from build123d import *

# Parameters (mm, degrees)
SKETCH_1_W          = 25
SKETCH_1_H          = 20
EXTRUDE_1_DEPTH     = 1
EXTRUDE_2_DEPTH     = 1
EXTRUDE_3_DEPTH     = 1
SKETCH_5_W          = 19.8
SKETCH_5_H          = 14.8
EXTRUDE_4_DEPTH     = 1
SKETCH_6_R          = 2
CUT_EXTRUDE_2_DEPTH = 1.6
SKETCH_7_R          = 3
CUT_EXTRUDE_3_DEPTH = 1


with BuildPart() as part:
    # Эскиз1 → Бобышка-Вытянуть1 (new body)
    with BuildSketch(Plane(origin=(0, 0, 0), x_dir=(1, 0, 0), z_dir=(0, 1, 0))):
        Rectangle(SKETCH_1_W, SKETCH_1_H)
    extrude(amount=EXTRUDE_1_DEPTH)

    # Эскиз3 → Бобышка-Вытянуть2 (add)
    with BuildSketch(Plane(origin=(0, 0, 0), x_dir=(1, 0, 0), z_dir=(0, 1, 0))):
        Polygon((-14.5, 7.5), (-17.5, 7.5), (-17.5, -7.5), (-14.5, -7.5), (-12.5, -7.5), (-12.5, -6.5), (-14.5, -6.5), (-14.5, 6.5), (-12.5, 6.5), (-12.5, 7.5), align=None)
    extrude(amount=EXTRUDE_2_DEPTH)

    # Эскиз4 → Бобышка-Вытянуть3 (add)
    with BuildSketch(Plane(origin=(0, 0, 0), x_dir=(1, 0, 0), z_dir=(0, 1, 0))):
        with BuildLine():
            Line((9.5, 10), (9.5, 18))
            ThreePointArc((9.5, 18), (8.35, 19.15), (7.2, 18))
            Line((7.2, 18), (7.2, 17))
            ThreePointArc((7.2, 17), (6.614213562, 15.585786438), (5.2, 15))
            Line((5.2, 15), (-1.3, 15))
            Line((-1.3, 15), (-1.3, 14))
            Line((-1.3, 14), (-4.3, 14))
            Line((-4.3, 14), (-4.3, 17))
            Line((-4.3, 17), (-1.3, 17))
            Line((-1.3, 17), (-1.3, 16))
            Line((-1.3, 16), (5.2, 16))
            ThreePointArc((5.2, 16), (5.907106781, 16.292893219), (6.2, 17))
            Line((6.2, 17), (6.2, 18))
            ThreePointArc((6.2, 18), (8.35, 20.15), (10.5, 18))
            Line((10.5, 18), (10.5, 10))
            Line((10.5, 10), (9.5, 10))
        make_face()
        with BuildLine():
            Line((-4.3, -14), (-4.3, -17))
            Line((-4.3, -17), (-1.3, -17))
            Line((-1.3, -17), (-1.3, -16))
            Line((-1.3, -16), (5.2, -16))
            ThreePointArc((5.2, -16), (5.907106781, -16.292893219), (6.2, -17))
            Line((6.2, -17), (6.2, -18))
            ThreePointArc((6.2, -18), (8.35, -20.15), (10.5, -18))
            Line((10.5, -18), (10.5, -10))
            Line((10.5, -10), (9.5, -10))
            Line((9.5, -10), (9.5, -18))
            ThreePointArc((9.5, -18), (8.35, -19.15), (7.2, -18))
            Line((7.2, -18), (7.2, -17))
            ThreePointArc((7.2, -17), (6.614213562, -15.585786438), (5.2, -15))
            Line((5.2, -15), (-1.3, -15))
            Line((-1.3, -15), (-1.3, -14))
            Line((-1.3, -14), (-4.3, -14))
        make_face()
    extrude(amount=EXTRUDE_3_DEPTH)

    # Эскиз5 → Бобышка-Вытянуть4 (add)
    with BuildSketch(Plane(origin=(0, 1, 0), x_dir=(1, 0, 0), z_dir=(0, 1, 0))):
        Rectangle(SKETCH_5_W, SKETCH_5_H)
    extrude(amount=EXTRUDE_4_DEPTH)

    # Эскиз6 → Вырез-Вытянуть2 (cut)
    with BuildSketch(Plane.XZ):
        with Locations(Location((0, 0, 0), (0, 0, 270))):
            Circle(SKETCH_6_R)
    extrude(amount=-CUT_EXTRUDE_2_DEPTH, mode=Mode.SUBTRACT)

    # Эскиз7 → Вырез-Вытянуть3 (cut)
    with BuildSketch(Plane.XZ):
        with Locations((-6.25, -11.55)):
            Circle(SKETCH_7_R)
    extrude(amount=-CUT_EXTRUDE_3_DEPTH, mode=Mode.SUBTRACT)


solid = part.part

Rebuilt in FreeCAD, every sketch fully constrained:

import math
import FreeCAD as App
import Part
import Sketcher
from FreeCAD import Vector

doc = App.newDocument("Part")
params = doc.addObject("Spreadsheet::Sheet", "Params")
for row, (alias, value) in enumerate([
    ("sketch1_width", "25 mm"),
    ("sketch1_height", "20 mm"),
    ("pad1_length", "1 mm"),
    ("sketch2_width", "5 mm"),
    ("sketch2_width2", "2 mm"),
    ("sketch2_height", "15 mm"),
    ("sketch2_height2", "1 mm"),
    ("pad2_length", "1 mm"),
    ("sketch3_radius", "1 mm"),
    ("sketch3_height", "8 mm"),
    ("sketch3_radius2", "2.15 mm"),
    ("sketch3_width", "6.5 mm"),
    ("pad3_length", "1 mm"),
    ("sketch4_width", "19.8 mm"),
    ("sketch4_height", "14.8 mm"),
    ("pad4_length", "1 mm"),
    ("sketch5_diameter", "4 mm"),
    ("pocket1_length", "1.6 mm"),
    ("sketch6_diameter", "6 mm"),
    ("pocket2_length", "1 mm"),
], start=1):
    params.set(f"A{row}", alias)
    params.set(f"B{row}", "=" + value)
    params.setAlias(f"B{row}", alias)

body = doc.addObject("PartDesign::Body", "Body")

# Sketch on XZ plane
sketch1 = body.newObject("Sketcher::SketchObject", "Sketch")
sketch1.AttachmentSupport = (doc.getObject("XZ_Plane"), [""])
sketch1.MapMode = "FlatFace"
sketch1.addGeometry([
    Part.LineSegment(Vector(-12, -10, 0), Vector(-12, 10, 0)),
    Part.LineSegment(Vector(-12, 10, 0), Vector(12, 10, 0)),
    Part.LineSegment(Vector(12, 10, 0), Vector(12, -10, 0)),
    Part.LineSegment(Vector(12, -10, 0), Vector(-12, -10, 0)),
], False)
sketch1.addConstraint([
    Sketcher.Constraint("Coincident", 0, 2, 1, 1),
    Sketcher.Constraint("Coincident", 1, 2, 2, 1),
    Sketcher.Constraint("Coincident", 2, 2, 3, 1),
    Sketcher.Constraint("Coincident", 3, 2, 0, 1),
    Sketcher.Constraint("Vertical", 0),
    Sketcher.Constraint("Horizontal", 1),
    Sketcher.Constraint("Vertical", 2),
    Sketcher.Constraint("Horizontal", 3),
    Sketcher.Constraint("Symmetric", 0, 2, 2, 2, -1, 1),
    Sketcher.Constraint("DistanceX", 1, 1, 1, 2, 25.0),
    Sketcher.Constraint("DistanceY", 0, 1, 0, 2, 20.0),
])
sketch1.setExpression("Constraints[9]", "Params.sketch1_width")
sketch1.setExpression("Constraints[10]", "Params.sketch1_height")
pad1 = body.newObject("PartDesign::Pad", "Pad")
pad1.Profile = sketch1
pad1.setExpression("Length", "Params.pad1_length")
pad1.Reversed = True

# Sketch on XZ plane
sketch2 = body.newObject("Sketcher::SketchObject", "Sketch001")
sketch2.AttachmentSupport = (doc.getObject("XZ_Plane"), [""])
sketch2.MapMode = "FlatFace"
sketch2.addGeometry([
    Part.LineSegment(Vector(-17.5, -7.5, 0), Vector(-17.5, 7.5, 0)),  # 0
    Part.LineSegment(Vector(-17.5, 7.5, 0), Vector(-12.5, 7.5, 0)),  # 1
    Part.LineSegment(Vector(-12.5, 7.5, 0), Vector(-12.5, 6.5, 0)),  # 2
    Part.LineSegment(Vector(-12.5, 6.5, 0), Vector(-14.5, 6.5, 0)),  # 3
    Part.LineSegment(Vector(-14.5, 6.5, 0), Vector(-14.5, -6.5, 0)),  # 4
    Part.LineSegment(Vector(-14.5, -6.5, 0), Vector(-12.5, -6.5, 0)),  # 5
    Part.LineSegment(Vector(-12.5, -6.5, 0), Vector(-12.5, -7.5, 0)),  # 6
    Part.LineSegment(Vector(-12.5, -7.5, 0), Vector(-17.5, -7.5, 0)),  # 7
], False)
sketch2.addConstraint([
    Sketcher.Constraint("Coincident", 0, 2, 1, 1),
    Sketcher.Constraint("Coincident", 1, 2, 2, 1),
    Sketcher.Constraint("Coincident", 2, 2, 3, 1),
    Sketcher.Constraint("Coincident", 3, 2, 4, 1),
    Sketcher.Constraint("Coincident", 4, 2, 5, 1),
    Sketcher.Constraint("Coincident", 5, 2, 6, 1),
    Sketcher.Constraint("Coincident", 6, 2, 7, 1),
    Sketcher.Constraint("Coincident", 7, 2, 0, 1),
    Sketcher.Constraint("Vertical", 0),
    Sketcher.Constraint("Horizontal", 1),
    Sketcher.Constraint("Vertical", 2),
    Sketcher.Constraint("Horizontal", 3),
    Sketcher.Constraint("Vertical", 4),
    Sketcher.Constraint("Horizontal", 5),
    Sketcher.Constraint("Vertical", 6),
    Sketcher.Constraint("Horizontal", 7),
    Sketcher.Constraint("Symmetric", 2, 2, 5, 2, -1),
    Sketcher.Constraint("Equal", 2, 6),
    Sketcher.Constraint("DistanceX", 1, 1, 1, 2, 5.0),
    Sketcher.Constraint("DistanceX", 3, 2, 3, 1, 2.0),
    Sketcher.Constraint("DistanceY", 0, 1, 0, 2, 15.0),
    Sketcher.Constraint("DistanceY", 2, 2, 2, 1, 1.0),
    Sketcher.Constraint("DistanceX", 0, 2, -1, 1, 17.5),
])
sketch2.setExpression("Constraints[18]", "Params.sketch2_width")
sketch2.setExpression("Constraints[19]", "Params.sketch2_width2")
sketch2.setExpression("Constraints[20]", "Params.sketch2_height")
sketch2.setExpression("Constraints[21]", "Params.sketch2_height2")
pad2 = body.newObject("PartDesign::Pad", "Pad001")
pad2.Profile = sketch2
pad2.setExpression("Length", "Params.pad2_length")
pad2.Reversed = True

# Sketch on XZ plane
sketch3 = body.newObject("Sketcher::SketchObject", "Sketch002")
sketch3.AttachmentSupport = (doc.getObject("XZ_Plane"), [""])
sketch3.MapMode = "FlatFace"
sketch3.addGeometry([
    Part.LineSegment(Vector(9.5, -18, 0), Vector(9.5, -10, 0)),  # 0
    Part.LineSegment(Vector(9.5, -10, 0), Vector(10.5, -10, 0)),  # 1
    Part.LineSegment(Vector(10.5, -10, 0), Vector(10.5, -18, 0)),  # 2
    Part.ArcOfCircle(Part.Circle(Vector(8.3, -18, 0), Vector(0, 0, 1), 2.1), math.radians(180), math.radians(360)),  # 3
    Part.LineSegment(Vector(6.2, -18, 0), Vector(6.2, -17, 0)),  # 4
    Part.ArcOfCircle(Part.Circle(Vector(5.2, -17, 0), Vector(0, 0, 1), 1), math.radians(0), math.radians(90)),  # 5
    Part.LineSegment(Vector(5.2, -16, 0), Vector(-1.3, -16, 0)),  # 6
    Part.LineSegment(Vector(-1.3, -16, 0), Vector(-1.3, -17, 0)),  # 7
    Part.LineSegment(Vector(-1.3, -17, 0), Vector(-4.3, -17, 0)),  # 8
    Part.LineSegment(Vector(-4.3, -17, 0), Vector(-4.3, -14, 0)),  # 9
    Part.LineSegment(Vector(-4.3, -14, 0), Vector(-1.3, -14, 0)),  # 10
    Part.LineSegment(Vector(-1.3, -14, 0), Vector(-1.3, -15, 0)),  # 11
    Part.LineSegment(Vector(-1.3, -15, 0), Vector(5.2, -15, 0)),  # 12
    Part.ArcOfCircle(Part.Circle(Vector(5.2, -17, 0), Vector(0, 0, 1), 2), math.radians(0), math.radians(90)),  # 13
    Part.LineSegment(Vector(7.2, -17, 0), Vector(7.2, -18, 0)),  # 14
    Part.ArcOfCircle(Part.Circle(Vector(8.3, -18, 0), Vector(0, 0, 1), 1.1), math.radians(180), math.radians(360)),  # 15
    Part.LineSegment(Vector(-4.3, 14, 0), Vector(-4.3, 17, 0)),  # 16
    Part.LineSegment(Vector(-4.3, 17, 0), Vector(-1.3, 17, 0)),  # 17
    Part.LineSegment(Vector(-1.3, 17, 0), Vector(-1.3, 16, 0)),  # 18
    Part.LineSegment(Vector(-1.3, 16, 0), Vector(5.2, 16, 0)),  # 19
    Part.ArcOfCircle(Part.Circle(Vector(5.2, 17, 0), Vector(0, 0, 1), 1), math.radians(-90), math.radians(0)),  # 20
    Part.LineSegment(Vector(6.2, 17, 0), Vector(6.2, 18, 0)),  # 21
    Part.ArcOfCircle(Part.Circle(Vector(8.3, 18, 0), Vector(0, 0, 1), 2.1), math.radians(0), math.radians(180)),  # 22
    Part.LineSegment(Vector(10.5, 18, 0), Vector(10.5, 10, 0)),  # 23
    Part.LineSegment(Vector(10.5, 10, 0), Vector(9.5, 10, 0)),  # 24
    Part.LineSegment(Vector(9.5, 10, 0), Vector(9.5, 18, 0)),  # 25
    Part.ArcOfCircle(Part.Circle(Vector(8.3, 18, 0), Vector(0, 0, 1), 1.1), math.radians(0), math.radians(180)),  # 26
    Part.LineSegment(Vector(7.2, 18, 0), Vector(7.2, 17, 0)),  # 27
    Part.ArcOfCircle(Part.Circle(Vector(5.2, 17, 0), Vector(0, 0, 1), 2), math.radians(-90), math.radians(0)),  # 28
    Part.LineSegment(Vector(5.2, 15, 0), Vector(-1.3, 15, 0)),  # 29
    Part.LineSegment(Vector(-1.3, 15, 0), Vector(-1.3, 14, 0)),  # 30
    Part.LineSegment(Vector(-1.3, 14, 0), Vector(-4.3, 14, 0)),  # 31
], False)
sketch3.addConstraint([
    Sketcher.Constraint("Coincident", 0, 2, 1, 1),
    Sketcher.Constraint("Coincident", 1, 2, 2, 1),
    Sketcher.Constraint("Tangent", 2, 2, 3, 2),
    Sketcher.Constraint("Tangent", 3, 1, 4, 1),
    Sketcher.Constraint("Tangent", 4, 2, 5, 1),
    Sketcher.Constraint("Tangent", 5, 2, 6, 1),
    Sketcher.Constraint("Coincident", 6, 2, 7, 1),
    Sketcher.Constraint("Coincident", 7, 2, 8, 1),
    Sketcher.Constraint("Coincident", 8, 2, 9, 1),
    Sketcher.Constraint("Coincident", 9, 2, 10, 1),
    Sketcher.Constraint("Coincident", 10, 2, 11, 1),
    Sketcher.Constraint("Coincident", 11, 2, 12, 1),
    Sketcher.Constraint("Tangent", 12, 2, 13, 2),
    Sketcher.Constraint("Tangent", 13, 1, 14, 1),
    Sketcher.Constraint("Tangent", 14, 2, 15, 1),
    Sketcher.Constraint("Tangent", 15, 2, 0, 1),
    Sketcher.Constraint("Coincident", 16, 2, 17, 1),
    Sketcher.Constraint("Coincident", 17, 2, 18, 1),
    Sketcher.Constraint("Coincident", 18, 2, 19, 1),
    Sketcher.Constraint("Tangent", 19, 2, 20, 1),
    Sketcher.Constraint("Tangent", 20, 2, 21, 1),
    Sketcher.Constraint("Tangent", 21, 2, 22, 2),
    Sketcher.Constraint("Tangent", 22, 1, 23, 1),
    Sketcher.Constraint("Coincident", 23, 2, 24, 1),
    Sketcher.Constraint("Coincident", 24, 2, 25, 1),
    Sketcher.Constraint("Tangent", 25, 2, 26, 1),
    Sketcher.Constraint("Tangent", 26, 2, 27, 1),
    Sketcher.Constraint("Tangent", 27, 2, 28, 2),
    Sketcher.Constraint("Tangent", 28, 1, 29, 1),
    Sketcher.Constraint("Coincident", 29, 2, 30, 1),
    Sketcher.Constraint("Coincident", 30, 2, 31, 1),
    Sketcher.Constraint("Coincident", 31, 2, 16, 1),
    Sketcher.Constraint("Vertical", 0),
    Sketcher.Constraint("Horizontal", 1),
    Sketcher.Constraint("Vertical", 2),
    Sketcher.Constraint("Vertical", 4),
    Sketcher.Constraint("Horizontal", 6),
    Sketcher.Constraint("Vertical", 7),
    Sketcher.Constraint("Horizontal", 8),
    Sketcher.Constraint("Vertical", 9),
    Sketcher.Constraint("Horizontal", 10),
    Sketcher.Constraint("Vertical", 11),
    Sketcher.Constraint("Horizontal", 12),
    Sketcher.Constraint("Vertical", 14),
    Sketcher.Constraint("Vertical", 16),
    Sketcher.Constraint("Horizontal", 17),
    Sketcher.Constraint("Vertical", 18),
    Sketcher.Constraint("Horizontal", 19),
    Sketcher.Constraint("Vertical", 21),
    Sketcher.Constraint("Vertical", 23),
    Sketcher.Constraint("Horizontal", 24),
    Sketcher.Constraint("Vertical", 25),
    Sketcher.Constraint("Vertical", 27),
    Sketcher.Constraint("Horizontal", 29),
    Sketcher.Constraint("Vertical", 30),
    Sketcher.Constraint("Horizontal", 31),
    Sketcher.Constraint("Coincident", 13, 3, 5, 3),
    Sketcher.Constraint("Coincident", 15, 3, 3, 3),
    Sketcher.Constraint("Coincident", 26, 3, 22, 3),
    Sketcher.Constraint("Coincident", 28, 3, 20, 3),
    Sketcher.Constraint("Equal", 5, 20),
    Sketcher.Constraint("Equal", 3, 22),
    Sketcher.Constraint("Equal", 15, 26),
    Sketcher.Constraint("Symmetric", 5, 3, 20, 3, -1),
    Sketcher.Constraint("Symmetric", 8, 2, 16, 2, -1),
    Sketcher.Constraint("Symmetric", 10, 2, 30, 2, -1),
    Sketcher.Constraint("Horizontal", 4, 2, 7, 2),
    Sketcher.Constraint("Vertical", 7, 2, 10, 2),
    Sketcher.Constraint("Vertical", 11, 2, 17, 2),
    Sketcher.Constraint("Equal", 24, 4),
    Sketcher.Constraint("Equal", 4, 7),
    Sketcher.Constraint("Equal", 31, 9),
    Sketcher.Constraint("Equal", 7, 11),
    Sketcher.Constraint("Equal", 18, 21),
    Sketcher.Constraint("Equal", 2, 23),
    Sketcher.Constraint("Radius", 5, 1.0),
    Sketcher.Constraint("DistanceY", 0, 1, 0, 2, 8.0),
    Sketcher.Constraint("Radius", 3, 2.15),
    Sketcher.Constraint("DistanceX", 6, 2, 6, 1, 6.5),
    Sketcher.Constraint("DistanceY", 3, 3, -1, 1, 18.0),
    Sketcher.Constraint("DistanceX", -1, 1, 5, 3, 5.2),
])
sketch3.setExpression("Constraints[75]", "Params.sketch3_radius")
sketch3.setExpression("Constraints[76]", "Params.sketch3_height")
sketch3.setExpression("Constraints[77]", "Params.sketch3_radius2")
sketch3.setExpression("Constraints[78]", "Params.sketch3_width")
pad3 = body.newObject("PartDesign::Pad", "Pad002")
pad3.Profile = sketch3
pad3.setExpression("Length", "Params.pad3_length")
pad3.Reversed = True

# Sketch on XZ plane
sketch4 = body.newObject("Sketcher::SketchObject", "Sketch003")
sketch4.AttachmentSupport = (doc.getObject("XZ_Plane"), [""])
sketch4.MapMode = "FlatFace"
sketch4.AttachmentOffset = App.Placement(Vector(0, 0, -1), App.Rotation())
sketch4.addGeometry([
    Part.LineSegment(Vector(-10, -7, 0), Vector(-10, 7, 0)),
    Part.LineSegment(Vector(-10, 7, 0), Vector(10, 7, 0)),
    Part.LineSegment(Vector(10, 7, 0), Vector(10, -7, 0)),
    Part.LineSegment(Vector(10, -7, 0), Vector(-10, -7, 0)),
], False)
sketch4.addConstraint([
    Sketcher.Constraint("Coincident", 0, 2, 1, 1),
    Sketcher.Constraint("Coincident", 1, 2, 2, 1),
    Sketcher.Constraint("Coincident", 2, 2, 3, 1),
    Sketcher.Constraint("Coincident", 3, 2, 0, 1),
    Sketcher.Constraint("Vertical", 0),
    Sketcher.Constraint("Horizontal", 1),
    Sketcher.Constraint("Vertical", 2),
    Sketcher.Constraint("Horizontal", 3),
    Sketcher.Constraint("Symmetric", 0, 2, 2, 2, -1, 1),
    Sketcher.Constraint("DistanceX", 1, 1, 1, 2, 19.8),
    Sketcher.Constraint("DistanceY", 0, 1, 0, 2, 14.8),
])
sketch4.setExpression("Constraints[9]", "Params.sketch4_width")
sketch4.setExpression("Constraints[10]", "Params.sketch4_height")
pad4 = body.newObject("PartDesign::Pad", "Pad003")
pad4.Profile = sketch4
pad4.setExpression("Length", "Params.pad4_length")
pad4.Reversed = True

# Sketch on XZ plane
sketch5 = body.newObject("Sketcher::SketchObject", "Sketch004")
sketch5.AttachmentSupport = (doc.getObject("XZ_Plane"), [""])
sketch5.MapMode = "FlatFace"
sketch5.addGeometry(Part.Circle(Vector(0, 0, 0), Vector(0, 0, 1), 2), False)
sketch5.addConstraint([
    Sketcher.Constraint("Coincident", 0, 3, -1, 1),
    Sketcher.Constraint("Diameter", 0, 4.0),
])
sketch5.setExpression("Constraints[1]", "Params.sketch5_diameter")
pocket1 = body.newObject("PartDesign::Pocket", "Pocket")
pocket1.Profile = sketch5
pocket1.setExpression("Length", "Params.pocket1_length")

# Sketch on XZ plane
sketch6 = body.newObject("Sketcher::SketchObject", "Sketch005")
sketch6.AttachmentSupport = (doc.getObject("XZ_Plane"), [""])
sketch6.MapMode = "FlatFace"
sketch6.addGeometry(Part.Circle(Vector(-6.2, -11.6, 0), Vector(0, 0, 1), 3), False)
sketch6.addConstraint([
    Sketcher.Constraint("Diameter", 0, 6.0),
    Sketcher.Constraint("DistanceX", 0, 3, -1, 1, 6.25),
    Sketcher.Constraint("DistanceY", 0, 3, -1, 1, 11.55),
])
sketch6.setExpression("Constraints[0]", "Params.sketch6_diameter")
pocket2 = body.newObject("PartDesign::Pocket", "Pocket001")
pocket2.Profile = sketch6
pocket2.setExpression("Length", "Params.pocket2_length")

doc.recompute()
